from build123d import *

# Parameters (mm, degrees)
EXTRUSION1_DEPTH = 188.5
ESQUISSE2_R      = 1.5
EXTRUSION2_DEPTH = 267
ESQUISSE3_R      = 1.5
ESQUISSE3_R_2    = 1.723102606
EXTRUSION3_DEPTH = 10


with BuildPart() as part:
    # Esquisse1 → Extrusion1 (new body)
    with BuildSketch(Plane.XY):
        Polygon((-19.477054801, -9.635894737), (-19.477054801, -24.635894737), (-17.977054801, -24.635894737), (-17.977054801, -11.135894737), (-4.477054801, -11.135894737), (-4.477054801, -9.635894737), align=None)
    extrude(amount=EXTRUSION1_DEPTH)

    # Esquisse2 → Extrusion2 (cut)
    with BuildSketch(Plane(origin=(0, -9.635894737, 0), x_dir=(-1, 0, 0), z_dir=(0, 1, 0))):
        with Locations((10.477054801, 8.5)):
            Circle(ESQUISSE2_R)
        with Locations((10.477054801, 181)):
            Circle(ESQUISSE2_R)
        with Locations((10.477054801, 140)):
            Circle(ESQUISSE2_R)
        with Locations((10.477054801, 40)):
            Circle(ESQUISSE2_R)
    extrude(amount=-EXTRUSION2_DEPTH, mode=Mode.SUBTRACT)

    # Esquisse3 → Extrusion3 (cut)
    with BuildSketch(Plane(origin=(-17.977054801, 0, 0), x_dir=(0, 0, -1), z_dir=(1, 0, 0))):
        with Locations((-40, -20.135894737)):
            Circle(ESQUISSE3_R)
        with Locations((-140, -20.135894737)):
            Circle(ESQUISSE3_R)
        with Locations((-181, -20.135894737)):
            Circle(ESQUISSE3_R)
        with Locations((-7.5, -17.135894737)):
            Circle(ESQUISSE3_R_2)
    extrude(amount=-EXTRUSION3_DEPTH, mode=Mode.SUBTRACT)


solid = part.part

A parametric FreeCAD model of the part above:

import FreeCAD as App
import Part
import Sketcher
from FreeCAD import Vector


def add_polygon(sketch, points):
    """Adds a closed chain of lines whose ends are joined by coincident constraints."""
    first, n = sketch.GeometryCount, len(points)
    for a, b in zip(points, points[1:] + points[:1]):
        sketch.addGeometry(Part.LineSegment(App.Vector(*a, 0), App.Vector(*b, 0)), False)
    for i in range(n):
        sketch.addConstraint(Sketcher.Constraint("Coincident", first + i, 2, first + (i + 1) % n, 1))

doc = App.newDocument("Part")
params = doc.addObject("Spreadsheet::Sheet", "Params")
for row, (alias, value) in enumerate([
    ("sketch1_width", "15 mm"),
    ("sketch1_width2", "1.5 mm"),
    ("pad1_length", "188.5 mm"),
    ("sketch2_diameter", "3 mm"),
    ("pocket1_length", "267 mm"),
    ("sketch3_diameter", "3 mm"),
    ("pocket2_length", "10 mm"),
], start=1):
    params.set(f"A{row}", alias)
    params.set(f"B{row}", "=" + value)
    params.setAlias(f"B{row}", alias)

body = doc.addObject("PartDesign::Body", "Body")

sketch1 = doc.addObject("Sketcher::SketchObject", "Sketch")
body.addObject(sketch1)
sketch1.AttachmentSupport = (doc.XY_Plane, [""])
sketch1.MapMode = "FlatFace"
add_polygon(sketch1, [(-19.477055, -9.635895), (-19.477055, -24.635895), (-17.977055, -24.635895), (-17.977055, -11.135895), (-4.477055, -11.135895), (-4.477055, -9.635895)])
sketch1.addConstraint([
    Sketcher.Constraint("Vertical", 0),
    Sketcher.Constraint("Horizontal", 1),
    Sketcher.Constraint("Vertical", 2),
    Sketcher.Constraint("Horizontal", 3),
    Sketcher.Constraint("Vertical", 4),
    Sketcher.Constraint("Horizontal", 5),
    Sketcher.Constraint("Equal", 5, 0),
    Sketcher.Constraint("Equal", 3, 2),
    Sketcher.Constraint("DistanceX", 5, 2, 5, 1, 15.0),
    Sketcher.Constraint("DistanceX", 1, 1, 1, 2, 1.5),
    Sketcher.Constraint("DistanceX", 0, 2, -1, 1, 19.477055),
    Sketcher.Constraint("DistanceY", 0, 2, -1, 1, 24.635895),
])
sketch1.setExpression("Constraints[14]", "Params.sketch1_width")
sketch1.setExpression("Constraints[15]", "Params.sketch1_width2")
pad1 = doc.addObject("PartDesign::Pad", "Pad")
body.addObject(pad1)
pad1.Profile = sketch1
pad1.setExpression("Length", "Params.pad1_length")

sketch2 = doc.addObject("Sketcher::SketchObject", "Sketch001")
body.addObject(sketch2)
sketch2.AttachmentSupport = (doc.XZ_Plane, [""])
sketch2.MapMode = "FlatFace"
sketch2.AttachmentOffset = App.Placement(Vector(0, 0, 9.635895), App.Rotation())
sketch2.addGeometry([
    Part.Circle(Vector(-10.477055, 8.5, 0), Vector(0, 0, 1), 1.5),
    Part.Circle(Vector(-10.477055, 181, 0), Vector(0, 0, 1), 1.5),
    Part.Circle(Vector(-10.477055, 140, 0), Vector(0, 0, 1), 1.5),
    Part.Circle(Vector(-10.477055, 40, 0), Vector(0, 0, 1), 1.5),
], False)
sketch2.addConstraint([
    Sketcher.Constraint("Equal", 0, 1),
    Sketcher.Constraint("Equal", 1, 2),
    Sketcher.Constraint("Equal", 2, 3),
    Sketcher.Constraint("Vertical", 0, 3, 1, 3),
    Sketcher.Constraint("Vertical", 1, 3, 2, 3),
    Sketcher.Constraint("Vertical", 2, 3, 3, 3),
    Sketcher.Constraint("Diameter", 0, 3.0),
    Sketcher.Constraint("DistanceY", -1, 1, 1, 3, 181.0),
    Sketcher.Constraint("DistanceY", -1, 1, 2, 3, 140.0),
    Sketcher.Constraint("DistanceY", -1, 1, 3, 3, 40.0),
    Sketcher.Constraint("DistanceY", -1, 1, 0, 3, 8.5),
    Sketcher.Constraint("DistanceX", 0, 3, -1, 1, 10.477055),
])
sketch2.setExpression("Constraints[6]", "Params.sketch2_diameter")
pocket1 = doc.addObject("PartDesign::Pocket", "Pocket")
body.addObject(pocket1)
pocket1.Profile = sketch2
pocket1.setExpression("Length", "Params.pocket1_length")
pocket1.Reversed = True

sketch3 = doc.addObject("Sketcher::SketchObject", "Sketch002")
body.addObject(sketch3)
sketch3.AttachmentSupport = (doc.YZ_Plane, [""])
sketch3.MapMode = "FlatFace"
sketch3.AttachmentOffset = App.Placement(Vector(0, 0, -17.977055), App.Rotation())
sketch3.addGeometry([
    Part.Circle(Vector(-20.135895, 40, 0), Vector(0, 0, 1), 1.5),
    Part.Circle(Vector(-20.135895, 140, 0), Vector(0, 0, 1), 1.5),
    Part.Circle(Vector(-20.135895, 181, 0), Vector(0, 0, 1), 1.5),
    Part.Circle(Vector(-17.135895, 7.5, 0), Vector(0, 0, 1), 1.723103),
], False)
sketch3.addConstraint([
    Sketcher.Constraint("Equal", 0, 1),
    Sketcher.Constraint("Equal", 1, 2),
    Sketcher.Constraint("Vertical", 0, 3, 1, 3),
    Sketcher.Constraint("Vertical", 1, 3, 2, 3),
    Sketcher.Constraint("Diameter", 0, 3.0),
    Sketcher.Constraint("DistanceY", -1, 1, 0, 3, 40.0),
    Sketcher.Constraint("DistanceY", -1, 1, 1, 3, 140.0),
    Sketcher.Constraint("DistanceY", -1, 1, 2, 3, 181.0),
    Sketcher.Constraint("DistanceX", 0, 3, 3, 3, 3.0),
    Sketcher.Constraint("DistanceY", -1, 1, 3, 3, 7.5),
    Sketcher.Constraint("Diameter", 3, 3.446205),
    Sketcher.Constraint("DistanceX", 0, 3, -1, 1, 20.135895),
])
sketch3.setExpression("Constraints[4]", "Params.sketch3_diameter")
pocket2 = doc.addObject("PartDesign::Pocket", "Pocket001")
body.addObject(pocket2)
pocket2.Profile = sketch3
pocket2.setExpression("Length", "Params.pocket2_length")

doc.recompute()
